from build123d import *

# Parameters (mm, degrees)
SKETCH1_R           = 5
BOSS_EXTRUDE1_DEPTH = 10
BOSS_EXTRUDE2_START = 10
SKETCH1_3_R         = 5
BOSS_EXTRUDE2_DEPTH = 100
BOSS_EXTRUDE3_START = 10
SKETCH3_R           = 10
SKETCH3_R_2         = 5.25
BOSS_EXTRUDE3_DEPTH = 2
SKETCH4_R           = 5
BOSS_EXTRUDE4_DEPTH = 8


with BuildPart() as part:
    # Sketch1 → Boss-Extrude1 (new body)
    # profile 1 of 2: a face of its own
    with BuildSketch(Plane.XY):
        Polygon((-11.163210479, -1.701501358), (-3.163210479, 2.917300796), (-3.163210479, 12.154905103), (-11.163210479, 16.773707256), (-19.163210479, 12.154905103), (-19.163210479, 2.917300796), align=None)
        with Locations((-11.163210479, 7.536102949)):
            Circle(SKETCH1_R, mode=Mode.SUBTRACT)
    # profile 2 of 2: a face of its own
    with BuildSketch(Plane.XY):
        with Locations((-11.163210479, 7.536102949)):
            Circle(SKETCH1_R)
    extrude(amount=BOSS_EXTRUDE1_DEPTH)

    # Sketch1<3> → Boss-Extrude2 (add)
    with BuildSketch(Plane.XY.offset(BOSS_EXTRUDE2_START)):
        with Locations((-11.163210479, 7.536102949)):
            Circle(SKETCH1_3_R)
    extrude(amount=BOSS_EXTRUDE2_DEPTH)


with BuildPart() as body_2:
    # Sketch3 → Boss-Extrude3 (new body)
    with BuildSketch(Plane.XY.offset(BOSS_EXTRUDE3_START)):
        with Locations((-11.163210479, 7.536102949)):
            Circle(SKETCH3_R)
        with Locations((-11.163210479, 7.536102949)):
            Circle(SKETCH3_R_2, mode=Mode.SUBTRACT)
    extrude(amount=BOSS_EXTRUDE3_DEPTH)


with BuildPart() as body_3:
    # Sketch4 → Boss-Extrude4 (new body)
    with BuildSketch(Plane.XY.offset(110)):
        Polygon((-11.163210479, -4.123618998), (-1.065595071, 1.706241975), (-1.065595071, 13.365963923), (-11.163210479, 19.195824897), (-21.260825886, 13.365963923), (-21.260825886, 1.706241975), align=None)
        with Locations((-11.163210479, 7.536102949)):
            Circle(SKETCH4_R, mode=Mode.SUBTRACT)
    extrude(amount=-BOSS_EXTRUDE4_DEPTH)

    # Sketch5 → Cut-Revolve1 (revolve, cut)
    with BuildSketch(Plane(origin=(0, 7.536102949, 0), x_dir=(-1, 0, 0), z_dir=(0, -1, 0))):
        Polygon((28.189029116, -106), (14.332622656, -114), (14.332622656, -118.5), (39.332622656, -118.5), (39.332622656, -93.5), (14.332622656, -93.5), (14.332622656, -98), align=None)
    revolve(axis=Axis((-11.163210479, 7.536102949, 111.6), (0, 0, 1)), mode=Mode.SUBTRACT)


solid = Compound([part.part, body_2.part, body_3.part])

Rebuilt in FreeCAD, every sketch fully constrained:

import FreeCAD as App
import Part
import Sketcher
Q = App.Units.Quantity


def add_polygon(sketch, points):
    """Adds a closed chain of lines whose ends are joined by coincident constraints."""
    first, n = sketch.GeometryCount, len(points)
    for a, b in zip(points, points[1:] + points[:1]):
        sketch.addGeometry(Part.LineSegment(App.Vector(*a, 0), App.Vector(*b, 0)), False)
    for i in range(n):
        sketch.addConstraint(Sketcher.Constraint("Coincident", first + i, 2, first + (i + 1) % n, 1))

doc = App.newDocument("Part")
body = doc.addObject("PartDesign::Body", "Body")

sketch1 = body.newObject("Sketcher::SketchObject", "Sketch")
sketch1.AttachmentSupport = (doc.getObject("XY_Plane"), [""])
sketch1.MapMode = "FlatFace"
add_polygon(sketch1, [(-11.16321, -1.701501), (-3.16321, 2.917301), (-3.16321, 12.154905), (-11.16321, 16.773707), (-19.16321, 12.154905), (-19.16321, 2.917301)])
sketch1.addConstraint(Sketcher.Constraint("Vertical", 1))
sketch1.addConstraint(Sketcher.Constraint("Vertical", 4))
sketch1.addConstraint(Sketcher.Constraint("Parallel", 0, 3))
sketch1.addConstraint(Sketcher.Constraint("Parallel", 2, 5))
sketch1.addConstraint(Sketcher.Constraint("Horizontal", 1, 2, 3, 2))
sketch1.addConstraint(Sketcher.Constraint("Horizontal", 0, 2, 4, 2))
sketch1.addConstraint(Sketcher.Constraint("Vertical", 2, 2, 5, 2))
sketch1.addConstraint(Sketcher.Constraint("Angle", 0, Q("30 deg")))
sketch1.addConstraint(Sketcher.Constraint("DistanceX", 2, 2, 1, 2, Q("8 mm")))
sketch1.addConstraint(Sketcher.Constraint("DistanceY", -1, 1, 0, 2, Q("2.917301 mm")))
sketch1.addConstraint(Sketcher.Constraint("DistanceY", 1, 1, 1, 2, Q("9.237604 mm")))
sketch1.addConstraint(Sketcher.Constraint("DistanceX", 0, 2, -1, 1, Q("3.16321 mm")))
pad1 = body.newObject("PartDesign::Pad", "Pad")
pad1.Profile = sketch1
pad1.Length = 10

sketch2 = body.newObject("Sketcher::SketchObject", "Sketch001")
sketch2.AttachmentSupport = (doc.getObject("XY_Plane"), [""])
sketch2.MapMode = "FlatFace"
sketch2.AttachmentOffset = App.Placement(App.Vector(0, 0, 10), App.Rotation())
sketch2.addGeometry(Part.Circle(App.Vector(-11.16321, 7.536103, 0), App.Vector(0, 0, 1), 5), False)
sketch2.addConstraint(Sketcher.Constraint("Diameter", 0, Q("10 mm")))
sketch2.addConstraint(Sketcher.Constraint("DistanceX", 0, 3, -1, 1, Q("11.16321 mm")))
sketch2.addConstraint(Sketcher.Constraint("DistanceY", -1, 1, 0, 3, Q("7.536103 mm")))
pad2 = body.newObject("PartDesign::Pad", "Pad001")
pad2.Profile = sketch2
pad2.Length = 100
body2 = doc.addObject("PartDesign::Body", "Body001")

sketch3 = body2.newObject("Sketcher::SketchObject", "Sketch002")
sketch3.AttachmentSupport = (doc.getObject("XY_Plane001"), [""])
sketch3.MapMode = "FlatFace"
sketch3.AttachmentOffset = App.Placement(App.Vector(0, 0, 10), App.Rotation())
sketch3.addGeometry(Part.Circle(App.Vector(-11.16321, 7.536103, 0), App.Vector(0, 0, 1), 10), False)
sketch3.addGeometry(Part.Circle(App.Vector(-11.16321, 7.536103, 0), App.Vector(0, 0, 1), 5.25), False)
sketch3.addConstraint(Sketcher.Constraint("Coincident", 1, 3, 0, 3))
sketch3.addConstraint(Sketcher.Constraint("Diameter", 0, Q("20 mm")))
sketch3.addConstraint(Sketcher.Constraint("Diameter", 1, Q("10.5 mm")))
sketch3.addConstraint(Sketcher.Constraint("DistanceX", 0, 3, -1, 1, Q("11.16321 mm")))
sketch3.addConstraint(Sketcher.Constraint("DistanceY", -1, 1, 0, 3, Q("7.536103 mm")))
pad3 = body2.newObject("PartDesign::Pad", "Pad002")
pad3.Profile = sketch3
pad3.Length = 2
body3 = doc.addObject("PartDesign::Body", "Body002")

sketch4 = body3.newObject("Sketcher::SketchObject", "Sketch003")
sketch4.AttachmentSupport = (doc.getObject("XY_Plane002"), [""])
sketch4.MapMode = "FlatFace"
sketch4.AttachmentOffset = App.Placement(App.Vector(0, 0, 110), App.Rotation())
add_polygon(sketch4, [(-11.16321, -4.123619), (-1.065595, 1.706242), (-1.065595, 13.365964), (-11.16321, 19.195825), (-21.260826, 13.365964), (-21.260826, 1.706242)])
sketch4.addGeometry(Part.Circle(App.Vector(-11.16321, 7.536103, 0), App.Vector(0, 0, 1), 5), False)
sketch4.addConstraint(Sketcher.Constraint("Vertical", 1))
sketch4.addConstraint(Sketcher.Constraint("Vertical", 4))
sketch4.addConstraint(Sketcher.Constraint("Parallel", 0, 3))
sketch4.addConstraint(Sketcher.Constraint("Parallel", 2, 5))
sketch4.addConstraint(Sketcher.Constraint("Horizontal", 1, 2, 3, 2))
sketch4.addConstraint(Sketcher.Constraint("Horizontal", 0, 2, 4, 2))
sketch4.addConstraint(Sketcher.Constraint("Vertical", 6, 3, 2, 2))
sketch4.addConstraint(Sketcher.Constraint("Vertical", 2, 2, 5, 2))
sketch4.addConstraint(Sketcher.Constraint("Diameter", 6, Q("10 mm")))
sketch4.addConstraint(Sketcher.Constraint("Angle", 0, Q("30 deg")))
sketch4.addConstraint(Sketcher.Constraint("DistanceY", 1, 1, 1, 2, Q("11.659722 mm")))
sketch4.addConstraint(Sketcher.Constraint("Distance", 0, Q("11.659722 mm")))
sketch4.addConstraint(Sketcher.Constraint("DistanceX", 6, 3, -1, 1, Q("11.16321 mm")))
sketch4.addConstraint(Sketcher.Constraint("DistanceY", -1, 1, 0, 2, Q("1.706242 mm")))
sketch4.addConstraint(Sketcher.Constraint("DistanceY", 0, 2, 6, 3, Q("5.829861 mm")))
pad4 = body3.newObject("PartDesign::Pad", "Pad003")
pad4.Profile = sketch4
pad4.Length = 8
pad4.Reversed = True

sketch5 = body3.newObject("Sketcher::SketchObject", "Sketch004")
sketch5.AttachmentSupport = (doc.getObject("XZ_Plane002"), [""])
sketch5.MapMode = "FlatFace"
sketch5.AttachmentOffset = App.Placement(App.Vector(0, 0, -7.536103), App.Rotation())
add_polygon(sketch5, [(-28.189029, 106), (-14.332623, 114), (-14.332623, 118.5), (-39.332623, 118.5), (-39.332623, 93.5), (-14.332623, 93.5), (-14.332623, 98)])
sketch5.addGeometry(Part.LineSegment(App.Vector(-11.16321, 93.5, 0), App.Vector(-11.16321, 118.5, 0)), True)
sketch5.addConstraint(Sketcher.Constraint("Vertical", 1))
sketch5.addConstraint(Sketcher.Constraint("Horizontal", 2))
sketch5.addConstraint(Sketcher.Constraint("Vertical", 3))
sketch5.addConstraint(Sketcher.Constraint("Horizontal", 4))
sketch5.addConstraint(Sketcher.Constraint("Vertical", 5))
sketch5.addConstraint(Sketcher.Constraint("Vertical", 7))
sketch5.addConstraint(Sketcher.Constraint("Horizontal", 4, 2, 7, 1))
sketch5.addConstraint(Sketcher.Constraint("Horizontal", 2, 2, 7, 2))
sketch5.addConstraint(Sketcher.Constraint("Vertical", 1, 2, 4, 2))
sketch5.addConstraint(Sketcher.Constraint("Equal", 4, 3))
sketch5.addConstraint(Sketcher.Constraint("Equal", 1, 5))
sketch5.addConstraint(Sketcher.Constraint("Equal", 0, 6))
sketch5.addConstraint(Sketcher.Constraint("DistanceX", 2, 2, 2, 1, Q("25 mm")))
sketch5.addConstraint(Sketcher.Constraint("Angle", 0, Q("30 deg")))
sketch5.addConstraint(Sketcher.Constraint("Distance", 0, Q("16 mm")))
sketch5.addConstraint(Sketcher.Constraint("DistanceY", -1, 1, 0, 2, Q("114 mm")))
sketch5.addConstraint(Sketcher.Constraint("DistanceX", 6, 2, -1, 1, Q("28.189029 mm")))
sketch5.addConstraint(Sketcher.Constraint("DistanceX", 7, 1, -1, 1, Q("11.16321 mm")))
groove = body3.newObject("PartDesign::Groove", "Groove")
groove.Profile = sketch5
groove.ReferenceAxis = (sketch5, ["Axis0"])
groove.Angle = 360

doc.recompute()
